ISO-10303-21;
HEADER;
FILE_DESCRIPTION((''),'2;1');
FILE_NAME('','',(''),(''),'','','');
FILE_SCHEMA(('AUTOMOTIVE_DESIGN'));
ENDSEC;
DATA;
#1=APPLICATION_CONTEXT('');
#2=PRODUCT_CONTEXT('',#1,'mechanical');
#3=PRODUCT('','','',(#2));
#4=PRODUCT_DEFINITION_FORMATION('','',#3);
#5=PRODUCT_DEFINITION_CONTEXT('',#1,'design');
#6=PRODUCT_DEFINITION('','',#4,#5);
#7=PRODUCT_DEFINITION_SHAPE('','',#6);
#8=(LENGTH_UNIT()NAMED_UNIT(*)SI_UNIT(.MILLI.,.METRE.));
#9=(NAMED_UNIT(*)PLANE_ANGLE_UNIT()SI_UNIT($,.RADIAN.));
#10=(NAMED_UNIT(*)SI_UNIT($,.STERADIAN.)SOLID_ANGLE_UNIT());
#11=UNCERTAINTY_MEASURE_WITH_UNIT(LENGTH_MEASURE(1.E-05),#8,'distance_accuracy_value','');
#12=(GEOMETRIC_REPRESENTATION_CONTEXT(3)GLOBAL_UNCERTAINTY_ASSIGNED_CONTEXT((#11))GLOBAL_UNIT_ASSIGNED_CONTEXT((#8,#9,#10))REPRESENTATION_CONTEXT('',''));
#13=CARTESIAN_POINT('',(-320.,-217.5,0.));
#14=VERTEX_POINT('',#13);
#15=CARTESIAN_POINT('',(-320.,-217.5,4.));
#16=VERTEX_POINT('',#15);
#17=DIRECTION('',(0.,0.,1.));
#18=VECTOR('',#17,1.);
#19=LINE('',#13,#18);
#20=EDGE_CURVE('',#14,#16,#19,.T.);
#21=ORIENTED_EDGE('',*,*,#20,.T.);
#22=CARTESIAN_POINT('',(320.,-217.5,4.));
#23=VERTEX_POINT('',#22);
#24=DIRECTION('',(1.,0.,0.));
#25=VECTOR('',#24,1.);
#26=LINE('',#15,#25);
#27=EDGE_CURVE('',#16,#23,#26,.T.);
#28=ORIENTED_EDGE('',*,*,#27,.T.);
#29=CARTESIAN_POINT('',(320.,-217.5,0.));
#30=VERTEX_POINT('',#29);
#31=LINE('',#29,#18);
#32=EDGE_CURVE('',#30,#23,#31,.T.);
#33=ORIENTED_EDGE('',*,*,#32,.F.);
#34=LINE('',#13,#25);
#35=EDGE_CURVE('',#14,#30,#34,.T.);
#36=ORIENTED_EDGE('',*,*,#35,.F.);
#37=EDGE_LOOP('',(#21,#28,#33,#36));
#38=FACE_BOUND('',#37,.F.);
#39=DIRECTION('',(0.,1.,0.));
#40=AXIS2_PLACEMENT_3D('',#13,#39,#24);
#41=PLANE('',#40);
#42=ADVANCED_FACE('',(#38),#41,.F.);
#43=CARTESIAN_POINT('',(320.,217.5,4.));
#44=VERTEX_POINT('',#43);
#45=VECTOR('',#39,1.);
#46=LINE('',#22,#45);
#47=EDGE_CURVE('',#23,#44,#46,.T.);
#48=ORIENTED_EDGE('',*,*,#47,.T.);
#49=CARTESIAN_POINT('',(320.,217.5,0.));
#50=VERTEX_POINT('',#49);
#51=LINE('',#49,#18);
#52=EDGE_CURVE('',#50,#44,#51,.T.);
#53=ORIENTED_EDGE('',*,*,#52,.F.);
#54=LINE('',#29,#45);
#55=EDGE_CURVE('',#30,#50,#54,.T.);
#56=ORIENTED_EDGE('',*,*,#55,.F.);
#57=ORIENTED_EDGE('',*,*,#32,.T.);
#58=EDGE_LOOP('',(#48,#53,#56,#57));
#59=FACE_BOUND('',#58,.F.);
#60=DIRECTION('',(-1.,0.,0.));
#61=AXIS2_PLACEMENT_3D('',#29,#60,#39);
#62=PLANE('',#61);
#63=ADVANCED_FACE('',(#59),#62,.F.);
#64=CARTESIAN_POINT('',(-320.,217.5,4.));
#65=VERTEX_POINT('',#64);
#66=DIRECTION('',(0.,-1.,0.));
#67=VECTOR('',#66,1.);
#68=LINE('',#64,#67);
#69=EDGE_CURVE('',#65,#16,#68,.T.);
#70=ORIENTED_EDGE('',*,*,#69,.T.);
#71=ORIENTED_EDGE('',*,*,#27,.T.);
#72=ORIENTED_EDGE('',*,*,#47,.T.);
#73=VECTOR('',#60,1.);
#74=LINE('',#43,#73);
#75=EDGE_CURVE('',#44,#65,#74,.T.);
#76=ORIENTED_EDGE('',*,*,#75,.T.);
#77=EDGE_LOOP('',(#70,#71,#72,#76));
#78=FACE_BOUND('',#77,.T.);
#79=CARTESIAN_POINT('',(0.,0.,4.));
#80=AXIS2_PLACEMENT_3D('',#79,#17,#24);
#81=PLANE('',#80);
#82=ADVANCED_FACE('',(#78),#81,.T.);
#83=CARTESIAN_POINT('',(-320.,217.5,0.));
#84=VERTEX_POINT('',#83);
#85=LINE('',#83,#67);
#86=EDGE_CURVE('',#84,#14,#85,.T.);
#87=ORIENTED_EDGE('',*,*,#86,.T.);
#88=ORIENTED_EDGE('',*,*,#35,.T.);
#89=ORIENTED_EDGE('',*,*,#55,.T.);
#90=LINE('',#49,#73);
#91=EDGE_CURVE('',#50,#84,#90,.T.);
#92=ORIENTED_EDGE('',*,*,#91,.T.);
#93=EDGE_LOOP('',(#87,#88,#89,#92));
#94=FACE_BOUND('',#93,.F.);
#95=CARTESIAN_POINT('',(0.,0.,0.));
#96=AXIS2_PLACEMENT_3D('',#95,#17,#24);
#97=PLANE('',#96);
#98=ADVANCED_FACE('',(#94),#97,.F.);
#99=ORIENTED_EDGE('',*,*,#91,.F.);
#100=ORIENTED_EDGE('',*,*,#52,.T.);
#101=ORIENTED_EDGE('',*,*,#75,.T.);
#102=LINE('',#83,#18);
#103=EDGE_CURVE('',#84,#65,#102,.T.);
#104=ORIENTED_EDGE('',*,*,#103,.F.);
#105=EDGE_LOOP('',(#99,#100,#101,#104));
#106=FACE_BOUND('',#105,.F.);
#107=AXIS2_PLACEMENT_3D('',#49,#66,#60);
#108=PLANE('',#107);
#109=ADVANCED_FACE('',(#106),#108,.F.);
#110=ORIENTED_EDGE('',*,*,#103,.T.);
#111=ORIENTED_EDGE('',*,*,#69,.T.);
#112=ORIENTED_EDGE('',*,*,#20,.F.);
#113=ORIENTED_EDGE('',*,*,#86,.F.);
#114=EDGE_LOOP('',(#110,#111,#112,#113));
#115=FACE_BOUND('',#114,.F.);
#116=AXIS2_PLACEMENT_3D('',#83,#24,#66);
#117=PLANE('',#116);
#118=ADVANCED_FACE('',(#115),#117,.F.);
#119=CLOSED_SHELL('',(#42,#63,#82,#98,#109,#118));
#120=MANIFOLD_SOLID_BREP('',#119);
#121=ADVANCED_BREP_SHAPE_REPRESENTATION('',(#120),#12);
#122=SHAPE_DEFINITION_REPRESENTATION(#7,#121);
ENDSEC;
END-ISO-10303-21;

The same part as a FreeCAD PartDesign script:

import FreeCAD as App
import Part
import Sketcher

doc = App.newDocument("Part")
body = doc.addObject("PartDesign::Body", "Body")

sketch1 = body.newObject("Sketcher::SketchObject", "Sketch")
sketch1.AttachmentSupport = (doc.getObject("XY_Plane"), [""])
sketch1.MapMode = "FlatFace"
sketch1.addGeometry(Part.LineSegment(App.Vector(-320, 218, 0), App.Vector(-320, -218, 0)), False)
sketch1.addGeometry(Part.LineSegment(App.Vector(-320, -218, 0), App.Vector(320, -218, 0)), False)
sketch1.addGeometry(Part.LineSegment(App.Vector(320, -218, 0), App.Vector(320, 218, 0)), False)
sketch1.addGeometry(Part.LineSegment(App.Vector(320, 218, 0), App.Vector(-320, 218, 0)), False)
sketch1.addConstraint(Sketcher.Constraint("Coincident", 0, 2, 1, 1))
sketch1.addConstraint(Sketcher.Constraint("Coincident", 1, 2, 2, 1))
sketch1.addConstraint(Sketcher.Constraint("Coincident", 2, 2, 3, 1))
sketch1.addConstraint(Sketcher.Constraint("Coincident", 3, 2, 0, 1))
sketch1.addConstraint(Sketcher.Constraint("Vertical", 0))
sketch1.addConstraint(Sketcher.Constraint("Horizontal", 1))
sketch1.addConstraint(Sketcher.Constraint("Vertical", 2))
sketch1.addConstraint(Sketcher.Constraint("Horizontal", 3))
sketch1.addConstraint(Sketcher.Constraint("Symmetric", 0, 2, 2, 2, -1, 1))
sketch1.addConstraint(Sketcher.Constraint("DistanceX", 1, 1, 1, 2, 640.0))
sketch1.addConstraint(Sketcher.Constraint("DistanceY", 0, 2, 0, 1, 435.0))
pad1 = body.newObject("PartDesign::Pad", "Pad")
pad1.Profile = sketch1
pad1.Length = 4

doc.recompute()
